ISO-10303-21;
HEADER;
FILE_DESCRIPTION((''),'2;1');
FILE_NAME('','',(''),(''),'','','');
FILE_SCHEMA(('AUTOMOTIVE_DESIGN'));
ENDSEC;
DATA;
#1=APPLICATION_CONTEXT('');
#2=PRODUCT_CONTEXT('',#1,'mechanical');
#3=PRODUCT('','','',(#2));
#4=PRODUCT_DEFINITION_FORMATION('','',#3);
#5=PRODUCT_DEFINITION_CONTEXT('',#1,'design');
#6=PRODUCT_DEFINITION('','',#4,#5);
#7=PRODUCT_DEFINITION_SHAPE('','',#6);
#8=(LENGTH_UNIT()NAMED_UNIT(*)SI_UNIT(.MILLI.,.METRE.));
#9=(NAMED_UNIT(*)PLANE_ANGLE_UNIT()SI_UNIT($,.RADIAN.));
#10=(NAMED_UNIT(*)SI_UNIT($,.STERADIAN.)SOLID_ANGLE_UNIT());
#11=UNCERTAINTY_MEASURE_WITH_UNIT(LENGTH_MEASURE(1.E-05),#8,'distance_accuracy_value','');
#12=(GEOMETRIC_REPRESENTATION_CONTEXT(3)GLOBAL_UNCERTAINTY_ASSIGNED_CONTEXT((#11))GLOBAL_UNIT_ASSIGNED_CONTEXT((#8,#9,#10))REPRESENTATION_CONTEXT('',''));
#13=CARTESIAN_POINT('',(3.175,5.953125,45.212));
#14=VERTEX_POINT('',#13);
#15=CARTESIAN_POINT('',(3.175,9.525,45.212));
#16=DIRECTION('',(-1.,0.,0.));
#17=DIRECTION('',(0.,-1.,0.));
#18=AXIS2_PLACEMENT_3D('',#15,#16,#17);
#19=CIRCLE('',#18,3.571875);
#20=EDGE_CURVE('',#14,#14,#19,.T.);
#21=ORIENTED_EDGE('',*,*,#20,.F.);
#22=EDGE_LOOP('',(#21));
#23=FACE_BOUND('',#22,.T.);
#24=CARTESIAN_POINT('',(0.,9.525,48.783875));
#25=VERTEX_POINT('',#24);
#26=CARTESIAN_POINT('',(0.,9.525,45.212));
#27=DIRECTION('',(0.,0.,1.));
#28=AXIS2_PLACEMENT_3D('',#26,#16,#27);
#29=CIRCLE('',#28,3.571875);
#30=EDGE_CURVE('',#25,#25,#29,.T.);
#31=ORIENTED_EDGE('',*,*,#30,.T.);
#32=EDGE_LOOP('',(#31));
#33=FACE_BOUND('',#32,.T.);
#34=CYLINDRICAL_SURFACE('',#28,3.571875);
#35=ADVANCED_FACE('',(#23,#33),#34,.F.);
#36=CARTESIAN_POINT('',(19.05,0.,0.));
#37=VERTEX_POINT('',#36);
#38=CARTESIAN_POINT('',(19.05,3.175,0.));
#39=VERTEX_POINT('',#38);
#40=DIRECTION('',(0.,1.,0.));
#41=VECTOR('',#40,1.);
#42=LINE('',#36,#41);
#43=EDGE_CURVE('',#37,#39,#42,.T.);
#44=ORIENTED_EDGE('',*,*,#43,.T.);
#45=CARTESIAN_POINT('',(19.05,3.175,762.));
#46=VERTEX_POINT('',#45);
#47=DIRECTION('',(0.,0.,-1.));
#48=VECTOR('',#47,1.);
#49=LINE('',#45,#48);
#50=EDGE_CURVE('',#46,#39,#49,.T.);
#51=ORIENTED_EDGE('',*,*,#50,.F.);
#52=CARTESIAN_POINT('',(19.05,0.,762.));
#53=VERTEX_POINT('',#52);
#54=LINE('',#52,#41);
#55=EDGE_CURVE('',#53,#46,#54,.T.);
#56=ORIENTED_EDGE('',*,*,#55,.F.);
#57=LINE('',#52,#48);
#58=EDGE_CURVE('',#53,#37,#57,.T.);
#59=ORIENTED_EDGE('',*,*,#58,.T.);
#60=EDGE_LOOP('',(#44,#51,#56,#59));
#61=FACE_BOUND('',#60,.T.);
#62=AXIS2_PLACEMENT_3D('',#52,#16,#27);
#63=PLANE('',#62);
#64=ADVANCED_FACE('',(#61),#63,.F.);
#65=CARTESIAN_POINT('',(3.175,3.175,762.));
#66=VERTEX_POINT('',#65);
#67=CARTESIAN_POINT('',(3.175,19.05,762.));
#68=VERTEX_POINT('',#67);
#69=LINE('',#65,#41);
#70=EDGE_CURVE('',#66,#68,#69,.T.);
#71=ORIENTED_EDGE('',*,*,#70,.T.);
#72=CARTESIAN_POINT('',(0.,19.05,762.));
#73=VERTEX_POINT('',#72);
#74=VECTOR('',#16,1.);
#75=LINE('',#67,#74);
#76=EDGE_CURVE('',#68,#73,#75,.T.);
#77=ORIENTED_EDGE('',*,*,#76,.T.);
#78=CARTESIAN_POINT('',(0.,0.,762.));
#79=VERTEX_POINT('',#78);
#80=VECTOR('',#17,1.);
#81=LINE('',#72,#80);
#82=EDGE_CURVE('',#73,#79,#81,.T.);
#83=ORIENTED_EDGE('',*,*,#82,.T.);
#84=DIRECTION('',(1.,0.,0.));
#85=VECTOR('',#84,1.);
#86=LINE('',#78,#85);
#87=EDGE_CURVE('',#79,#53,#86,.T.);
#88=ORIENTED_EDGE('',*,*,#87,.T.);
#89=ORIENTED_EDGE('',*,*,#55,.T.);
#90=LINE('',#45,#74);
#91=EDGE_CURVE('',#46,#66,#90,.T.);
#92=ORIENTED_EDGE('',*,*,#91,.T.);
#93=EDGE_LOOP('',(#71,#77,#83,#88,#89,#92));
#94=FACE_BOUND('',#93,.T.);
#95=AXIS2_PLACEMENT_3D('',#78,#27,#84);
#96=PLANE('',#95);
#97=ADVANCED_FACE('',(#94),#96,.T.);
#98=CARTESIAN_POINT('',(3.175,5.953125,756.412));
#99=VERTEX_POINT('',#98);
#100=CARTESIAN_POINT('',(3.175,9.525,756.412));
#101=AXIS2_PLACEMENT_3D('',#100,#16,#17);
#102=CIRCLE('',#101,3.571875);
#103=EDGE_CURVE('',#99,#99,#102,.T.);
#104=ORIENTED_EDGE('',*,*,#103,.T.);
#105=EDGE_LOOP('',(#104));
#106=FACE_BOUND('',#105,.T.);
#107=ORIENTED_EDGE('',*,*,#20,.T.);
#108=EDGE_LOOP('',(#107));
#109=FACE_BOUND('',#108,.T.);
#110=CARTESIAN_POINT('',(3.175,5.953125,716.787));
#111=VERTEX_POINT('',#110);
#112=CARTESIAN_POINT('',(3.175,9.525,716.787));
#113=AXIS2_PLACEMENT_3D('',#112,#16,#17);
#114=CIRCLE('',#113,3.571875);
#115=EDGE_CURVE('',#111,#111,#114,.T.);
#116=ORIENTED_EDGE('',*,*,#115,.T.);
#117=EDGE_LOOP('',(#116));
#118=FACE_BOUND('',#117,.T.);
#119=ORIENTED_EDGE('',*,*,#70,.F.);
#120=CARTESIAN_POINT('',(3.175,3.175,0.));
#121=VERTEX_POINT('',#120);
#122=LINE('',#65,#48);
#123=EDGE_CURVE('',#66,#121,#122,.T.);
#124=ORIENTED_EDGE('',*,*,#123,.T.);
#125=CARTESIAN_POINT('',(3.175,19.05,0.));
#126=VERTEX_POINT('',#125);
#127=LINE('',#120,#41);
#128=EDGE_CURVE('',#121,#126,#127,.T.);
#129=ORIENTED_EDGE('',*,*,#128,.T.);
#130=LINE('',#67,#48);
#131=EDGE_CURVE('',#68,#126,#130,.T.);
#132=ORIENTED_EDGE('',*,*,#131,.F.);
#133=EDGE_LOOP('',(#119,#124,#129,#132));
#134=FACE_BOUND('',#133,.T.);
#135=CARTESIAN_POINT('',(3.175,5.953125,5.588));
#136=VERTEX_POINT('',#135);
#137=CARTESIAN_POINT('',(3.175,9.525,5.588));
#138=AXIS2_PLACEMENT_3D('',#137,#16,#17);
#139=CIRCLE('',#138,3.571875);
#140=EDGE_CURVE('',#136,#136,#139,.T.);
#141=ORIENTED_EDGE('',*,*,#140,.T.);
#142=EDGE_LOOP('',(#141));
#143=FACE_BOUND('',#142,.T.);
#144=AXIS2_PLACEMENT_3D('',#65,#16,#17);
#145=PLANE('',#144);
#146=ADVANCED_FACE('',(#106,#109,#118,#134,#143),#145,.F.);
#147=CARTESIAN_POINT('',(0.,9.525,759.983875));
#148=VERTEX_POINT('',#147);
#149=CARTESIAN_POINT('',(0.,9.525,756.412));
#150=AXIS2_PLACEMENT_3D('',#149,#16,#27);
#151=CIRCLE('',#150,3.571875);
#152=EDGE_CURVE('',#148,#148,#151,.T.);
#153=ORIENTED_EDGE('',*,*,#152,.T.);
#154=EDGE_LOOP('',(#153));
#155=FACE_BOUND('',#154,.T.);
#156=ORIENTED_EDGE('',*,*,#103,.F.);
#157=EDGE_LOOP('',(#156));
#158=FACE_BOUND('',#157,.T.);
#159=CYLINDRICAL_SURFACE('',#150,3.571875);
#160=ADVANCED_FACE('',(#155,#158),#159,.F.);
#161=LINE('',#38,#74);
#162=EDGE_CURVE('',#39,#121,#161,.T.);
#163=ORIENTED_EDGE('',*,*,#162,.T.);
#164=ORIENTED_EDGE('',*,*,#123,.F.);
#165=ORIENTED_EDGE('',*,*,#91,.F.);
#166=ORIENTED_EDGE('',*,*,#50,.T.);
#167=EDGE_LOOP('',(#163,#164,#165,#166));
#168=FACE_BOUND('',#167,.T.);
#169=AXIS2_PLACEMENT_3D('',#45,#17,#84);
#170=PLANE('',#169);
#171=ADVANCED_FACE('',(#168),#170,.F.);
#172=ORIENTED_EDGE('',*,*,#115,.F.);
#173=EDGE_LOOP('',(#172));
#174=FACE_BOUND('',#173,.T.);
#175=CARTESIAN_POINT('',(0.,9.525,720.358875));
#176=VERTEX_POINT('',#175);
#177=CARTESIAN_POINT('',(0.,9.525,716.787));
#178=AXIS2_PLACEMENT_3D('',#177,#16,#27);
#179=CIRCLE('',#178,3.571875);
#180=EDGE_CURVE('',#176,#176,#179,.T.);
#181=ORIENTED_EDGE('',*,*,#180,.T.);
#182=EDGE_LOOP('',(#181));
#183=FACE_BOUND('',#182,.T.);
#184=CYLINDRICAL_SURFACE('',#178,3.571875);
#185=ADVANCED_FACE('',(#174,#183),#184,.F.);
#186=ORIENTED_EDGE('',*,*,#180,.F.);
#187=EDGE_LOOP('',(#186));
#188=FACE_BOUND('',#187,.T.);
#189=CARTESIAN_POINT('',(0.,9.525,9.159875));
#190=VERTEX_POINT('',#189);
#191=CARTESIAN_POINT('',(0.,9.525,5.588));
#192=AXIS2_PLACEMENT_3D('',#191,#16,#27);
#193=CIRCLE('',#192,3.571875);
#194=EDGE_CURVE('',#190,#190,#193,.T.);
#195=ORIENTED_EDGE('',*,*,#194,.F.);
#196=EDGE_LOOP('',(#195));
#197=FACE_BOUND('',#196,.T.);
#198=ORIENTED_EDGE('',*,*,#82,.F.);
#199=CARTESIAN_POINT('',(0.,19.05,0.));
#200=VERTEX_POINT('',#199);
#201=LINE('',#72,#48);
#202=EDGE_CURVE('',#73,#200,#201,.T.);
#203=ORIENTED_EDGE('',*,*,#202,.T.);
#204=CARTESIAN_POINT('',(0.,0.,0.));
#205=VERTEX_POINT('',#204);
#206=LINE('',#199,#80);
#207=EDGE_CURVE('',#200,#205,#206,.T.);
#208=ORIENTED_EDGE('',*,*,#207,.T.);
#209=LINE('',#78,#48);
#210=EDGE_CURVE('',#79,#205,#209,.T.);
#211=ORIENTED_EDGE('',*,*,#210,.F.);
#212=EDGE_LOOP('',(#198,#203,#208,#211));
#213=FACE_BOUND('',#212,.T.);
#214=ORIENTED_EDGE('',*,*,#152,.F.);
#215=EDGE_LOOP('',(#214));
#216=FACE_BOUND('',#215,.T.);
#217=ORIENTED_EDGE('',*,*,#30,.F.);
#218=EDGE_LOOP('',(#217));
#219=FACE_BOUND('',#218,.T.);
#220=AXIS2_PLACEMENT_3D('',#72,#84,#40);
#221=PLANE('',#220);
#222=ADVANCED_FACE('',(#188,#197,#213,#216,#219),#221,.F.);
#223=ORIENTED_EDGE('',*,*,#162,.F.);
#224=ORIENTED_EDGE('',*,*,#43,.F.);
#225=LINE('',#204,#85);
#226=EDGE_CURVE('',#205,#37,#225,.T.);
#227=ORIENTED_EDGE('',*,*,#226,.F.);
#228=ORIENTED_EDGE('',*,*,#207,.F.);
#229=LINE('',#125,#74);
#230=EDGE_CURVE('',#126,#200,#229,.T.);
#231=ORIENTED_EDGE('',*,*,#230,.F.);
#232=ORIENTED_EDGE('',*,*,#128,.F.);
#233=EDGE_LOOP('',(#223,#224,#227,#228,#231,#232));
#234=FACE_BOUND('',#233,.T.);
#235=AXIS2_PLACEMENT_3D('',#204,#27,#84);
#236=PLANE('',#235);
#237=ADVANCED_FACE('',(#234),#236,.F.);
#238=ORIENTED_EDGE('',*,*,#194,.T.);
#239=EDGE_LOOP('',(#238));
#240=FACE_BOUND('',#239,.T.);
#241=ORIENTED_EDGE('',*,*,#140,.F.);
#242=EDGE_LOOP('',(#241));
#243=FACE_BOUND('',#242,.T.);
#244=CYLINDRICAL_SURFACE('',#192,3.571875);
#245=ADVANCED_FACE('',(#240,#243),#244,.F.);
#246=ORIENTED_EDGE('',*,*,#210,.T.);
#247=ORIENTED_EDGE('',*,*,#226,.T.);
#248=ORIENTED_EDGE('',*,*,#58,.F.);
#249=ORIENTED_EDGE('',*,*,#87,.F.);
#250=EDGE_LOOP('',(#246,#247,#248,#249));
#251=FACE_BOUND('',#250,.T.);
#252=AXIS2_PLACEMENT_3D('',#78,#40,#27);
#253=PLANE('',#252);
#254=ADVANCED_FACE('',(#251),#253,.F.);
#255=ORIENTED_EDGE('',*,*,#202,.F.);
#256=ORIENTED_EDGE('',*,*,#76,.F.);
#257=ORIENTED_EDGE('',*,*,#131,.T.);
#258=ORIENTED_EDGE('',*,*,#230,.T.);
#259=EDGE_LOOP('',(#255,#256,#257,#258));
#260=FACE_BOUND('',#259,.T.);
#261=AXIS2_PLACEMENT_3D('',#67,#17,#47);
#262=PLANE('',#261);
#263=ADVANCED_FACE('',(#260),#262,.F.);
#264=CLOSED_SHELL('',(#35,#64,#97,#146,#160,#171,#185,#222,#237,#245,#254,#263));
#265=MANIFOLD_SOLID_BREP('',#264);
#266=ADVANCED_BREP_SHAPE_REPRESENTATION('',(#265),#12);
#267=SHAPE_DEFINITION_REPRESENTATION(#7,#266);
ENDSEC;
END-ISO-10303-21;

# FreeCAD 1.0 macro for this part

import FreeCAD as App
import Part
import Sketcher
Q = App.Units.Quantity

doc = App.newDocument("Part")
params = doc.addObject("Spreadsheet::Sheet", "Params")
for row, (alias, value) in enumerate([
    ("sketch1_width", "0.75 in"),
    ("sketch1_width2", "0.625 in"),
    ("pad1_length", "30 in"),
    ("sketch2_diameter", "0.28125 in"),
    ("hole_diameter", "0.28125 in"),
], start=1):
    params.set(f"A{row}", alias)
    params.set(f"B{row}", "=" + value)
    params.setAlias(f"B{row}", alias)

body = doc.addObject("PartDesign::Body", "Body")

sketch1 = body.newObject("Sketcher::SketchObject", "Sketch")
sketch1.AttachmentSupport = (doc.getObject("XY_Plane"), [""])
sketch1.MapMode = "FlatFace"
sketch1.addGeometry(Part.LineSegment(App.Vector(0, 0, 0), App.Vector(19.05, 0, 0)), False)
sketch1.addGeometry(Part.LineSegment(App.Vector(19.05, 0, 0), App.Vector(19.05, 3.175, 0)), False)
sketch1.addGeometry(Part.LineSegment(App.Vector(19.05, 3.175, 0), App.Vector(3.175, 3.175, 0)), False)
sketch1.addGeometry(Part.LineSegment(App.Vector(3.175, 3.175, 0), App.Vector(3.175, 19.05, 0)), False)
sketch1.addGeometry(Part.LineSegment(App.Vector(3.175, 19.05, 0), App.Vector(0, 19.05, 0)), False)
sketch1.addGeometry(Part.LineSegment(App.Vector(0, 19.05, 0), App.Vector(0, 0, 0)), False)
sketch1.addConstraint(Sketcher.Constraint("Coincident", 0, 2, 1, 1))
sketch1.addConstraint(Sketcher.Constraint("Coincident", 1, 2, 2, 1))
sketch1.addConstraint(Sketcher.Constraint("Coincident", 2, 2, 3, 1))
sketch1.addConstraint(Sketcher.Constraint("Coincident", 3, 2, 4, 1))
sketch1.addConstraint(Sketcher.Constraint("Coincident", 4, 2, 5, 1))
sketch1.addConstraint(Sketcher.Constraint("Coincident", 5, 2, 0, 1))
sketch1.addConstraint(Sketcher.Constraint("Horizontal", 0))
sketch1.addConstraint(Sketcher.Constraint("Vertical", 1))
sketch1.addConstraint(Sketcher.Constraint("Horizontal", 2))
sketch1.addConstraint(Sketcher.Constraint("Vertical", 3))
sketch1.addConstraint(Sketcher.Constraint("Horizontal", 4))
sketch1.addConstraint(Sketcher.Constraint("Vertical", 5))
sketch1.addConstraint(Sketcher.Constraint("Coincident", 5, 2, -1, 1))
sketch1.addConstraint(Sketcher.Constraint("Equal", 4, 1))
sketch1.addConstraint(Sketcher.Constraint("Equal", 2, 3))
sketch1.addConstraint(Sketcher.Constraint("DistanceX", 0, 1, 0, 2, Q("0.75 in")))
sketch1.addConstraint(Sketcher.Constraint("DistanceX", 2, 2, 2, 1, Q("0.625 in")))
sketch1.setExpression("Constraints[15]", "Params.sketch1_width")
sketch1.setExpression("Constraints[16]", "Params.sketch1_width2")
pad1 = body.newObject("PartDesign::Pad", "Pad")
pad1.Profile = sketch1
pad1.setExpression("Length", "Params.pad1_length")

sketch2 = body.newObject("Sketcher::SketchObject", "Sketch001")
sketch2.AttachmentSupport = (doc.getObject("YZ_Plane"), [""])
sketch2.MapMode = "FlatFace"
sketch2.addGeometry(Part.Circle(App.Vector(9.525, 5.588, 0), App.Vector(0, 0, 1), 3.571875), False)
sketch2.addGeometry(Part.Circle(App.Vector(9.525, 45.212, 0), App.Vector(0, 0, 1), 3.571875), False)
sketch2.addGeometry(Part.Circle(App.Vector(9.525, 716.787, 0), App.Vector(0, 0, 1), 3.571875), False)
sketch2.addGeometry(Part.Circle(App.Vector(9.525, 756.412, 0), App.Vector(0, 0, 1), 3.571875), False)
sketch2.addConstraint(Sketcher.Constraint("Equal", 0, 1))
sketch2.addConstraint(Sketcher.Constraint("Equal", 1, 2))
sketch2.addConstraint(Sketcher.Constraint("Equal", 2, 3))
sketch2.addConstraint(Sketcher.Constraint("Vertical", 0, 3, 1, 3))
sketch2.addConstraint(Sketcher.Constraint("Vertical", 1, 3, 2, 3))
sketch2.addConstraint(Sketcher.Constraint("Vertical", 2, 3, 3, 3))
sketch2.addConstraint(Sketcher.Constraint("Diameter", 0, Q("0.28125 in")))
sketch2.addConstraint(Sketcher.Constraint("DistanceY", 1, 3, 3, 3, Q("28 in")))
sketch2.addConstraint(Sketcher.Constraint("DistanceY", -1, 1, 0, 3, Q("0.22 in")))
sketch2.addConstraint(Sketcher.Constraint("DistanceY", -1, 1, 1, 3, Q("1.78 in")))
sketch2.addConstraint(Sketcher.Constraint("DistanceX", -1, 1, 0, 3, Q("0.375 in")))
sketch2.addConstraint(Sketcher.Constraint("DistanceY", -1, 1, 2, 3, 716.787))
sketch2.setExpression("Constraints[6]", "Params.sketch2_diameter")
doc.recompute()
hole = body.newObject("PartDesign::Hole", "Hole")
hole.Profile = sketch2
hole.ThreadType = "None"
hole.setExpression("Diameter", "Params.hole_diameter")
hole.DepthType = "ThroughAll"
hole.Reversed = True

doc.recompute()
